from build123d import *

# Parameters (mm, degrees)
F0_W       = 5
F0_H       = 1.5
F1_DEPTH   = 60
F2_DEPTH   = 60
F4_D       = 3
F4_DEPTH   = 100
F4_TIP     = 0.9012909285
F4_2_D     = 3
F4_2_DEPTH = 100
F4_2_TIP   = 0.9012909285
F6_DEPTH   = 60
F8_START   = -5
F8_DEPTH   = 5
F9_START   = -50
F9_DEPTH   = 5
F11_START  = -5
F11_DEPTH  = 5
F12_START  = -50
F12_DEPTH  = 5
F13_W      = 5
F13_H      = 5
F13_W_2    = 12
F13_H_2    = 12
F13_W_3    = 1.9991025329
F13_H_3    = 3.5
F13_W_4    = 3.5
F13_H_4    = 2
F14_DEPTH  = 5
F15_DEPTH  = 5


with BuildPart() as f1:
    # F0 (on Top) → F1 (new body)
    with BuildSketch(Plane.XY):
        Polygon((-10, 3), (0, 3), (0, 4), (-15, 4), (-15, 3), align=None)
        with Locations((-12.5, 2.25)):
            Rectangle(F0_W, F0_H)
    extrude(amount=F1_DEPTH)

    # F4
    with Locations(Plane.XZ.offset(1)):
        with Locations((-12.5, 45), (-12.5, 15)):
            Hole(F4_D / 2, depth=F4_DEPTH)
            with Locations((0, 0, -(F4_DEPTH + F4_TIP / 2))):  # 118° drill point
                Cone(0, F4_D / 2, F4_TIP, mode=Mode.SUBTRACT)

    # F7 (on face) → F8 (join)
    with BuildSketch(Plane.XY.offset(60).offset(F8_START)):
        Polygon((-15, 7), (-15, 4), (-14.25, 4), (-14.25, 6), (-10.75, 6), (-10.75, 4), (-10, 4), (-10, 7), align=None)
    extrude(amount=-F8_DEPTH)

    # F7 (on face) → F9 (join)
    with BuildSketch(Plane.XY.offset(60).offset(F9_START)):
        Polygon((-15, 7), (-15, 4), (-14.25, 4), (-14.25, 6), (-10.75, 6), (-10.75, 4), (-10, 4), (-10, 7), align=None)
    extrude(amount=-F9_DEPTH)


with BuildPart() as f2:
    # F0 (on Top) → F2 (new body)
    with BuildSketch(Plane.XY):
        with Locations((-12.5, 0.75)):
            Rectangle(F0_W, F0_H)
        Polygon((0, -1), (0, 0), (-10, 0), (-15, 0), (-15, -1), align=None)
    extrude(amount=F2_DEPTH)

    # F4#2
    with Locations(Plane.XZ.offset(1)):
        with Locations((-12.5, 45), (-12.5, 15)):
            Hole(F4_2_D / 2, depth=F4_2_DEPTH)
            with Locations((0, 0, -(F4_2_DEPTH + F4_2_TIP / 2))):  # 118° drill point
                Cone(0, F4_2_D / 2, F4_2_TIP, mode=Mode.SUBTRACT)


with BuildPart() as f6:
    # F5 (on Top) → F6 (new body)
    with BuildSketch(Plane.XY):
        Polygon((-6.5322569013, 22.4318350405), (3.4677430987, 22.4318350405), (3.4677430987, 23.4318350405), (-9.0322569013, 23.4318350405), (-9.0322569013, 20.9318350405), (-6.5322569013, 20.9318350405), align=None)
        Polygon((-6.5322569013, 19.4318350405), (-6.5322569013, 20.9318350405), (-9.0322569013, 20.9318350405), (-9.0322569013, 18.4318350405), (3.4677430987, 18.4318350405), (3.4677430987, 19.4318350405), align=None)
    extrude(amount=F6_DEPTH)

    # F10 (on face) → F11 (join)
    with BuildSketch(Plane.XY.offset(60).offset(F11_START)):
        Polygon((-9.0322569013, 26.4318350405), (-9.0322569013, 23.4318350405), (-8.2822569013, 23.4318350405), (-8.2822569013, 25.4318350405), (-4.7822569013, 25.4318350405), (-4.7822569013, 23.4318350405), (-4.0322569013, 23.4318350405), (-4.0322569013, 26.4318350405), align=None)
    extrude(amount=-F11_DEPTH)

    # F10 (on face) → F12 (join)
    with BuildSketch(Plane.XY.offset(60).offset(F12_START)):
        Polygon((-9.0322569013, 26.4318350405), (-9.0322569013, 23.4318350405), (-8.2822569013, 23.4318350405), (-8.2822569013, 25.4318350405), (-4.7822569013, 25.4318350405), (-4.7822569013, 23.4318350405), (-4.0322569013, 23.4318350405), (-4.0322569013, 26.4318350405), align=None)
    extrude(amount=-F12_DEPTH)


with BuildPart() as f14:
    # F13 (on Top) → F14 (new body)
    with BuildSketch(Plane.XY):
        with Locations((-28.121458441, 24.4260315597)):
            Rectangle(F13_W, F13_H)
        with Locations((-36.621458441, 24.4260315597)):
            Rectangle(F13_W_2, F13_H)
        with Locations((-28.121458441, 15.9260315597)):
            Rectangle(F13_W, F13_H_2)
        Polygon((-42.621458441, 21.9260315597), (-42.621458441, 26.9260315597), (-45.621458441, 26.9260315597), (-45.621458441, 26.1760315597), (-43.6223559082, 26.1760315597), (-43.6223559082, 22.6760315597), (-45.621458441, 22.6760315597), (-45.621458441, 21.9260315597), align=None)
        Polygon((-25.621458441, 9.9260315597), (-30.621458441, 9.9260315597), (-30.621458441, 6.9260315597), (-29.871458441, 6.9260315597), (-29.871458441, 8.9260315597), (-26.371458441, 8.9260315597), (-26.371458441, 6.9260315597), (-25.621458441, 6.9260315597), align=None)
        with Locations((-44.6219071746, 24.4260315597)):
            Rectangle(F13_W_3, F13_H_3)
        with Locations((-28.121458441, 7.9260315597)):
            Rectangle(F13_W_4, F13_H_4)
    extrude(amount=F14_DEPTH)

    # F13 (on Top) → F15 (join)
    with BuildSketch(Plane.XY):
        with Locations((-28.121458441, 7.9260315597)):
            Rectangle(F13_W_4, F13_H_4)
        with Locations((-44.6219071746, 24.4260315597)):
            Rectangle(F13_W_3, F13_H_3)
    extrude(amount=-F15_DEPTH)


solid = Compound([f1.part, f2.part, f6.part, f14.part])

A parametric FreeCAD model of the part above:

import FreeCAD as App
import Part
import Sketcher

V = App.Vector
Q = App.Units.Quantity


def add_polygon(sketch, points):
    """Adds a closed chain of lines whose ends are joined by coincident constraints."""
    first, n = sketch.GeometryCount, len(points)
    for a, b in zip(points, points[1:] + points[:1]):
        sketch.addGeometry(Part.LineSegment(App.Vector(*a, 0), App.Vector(*b, 0)), False)
    for i in range(n):
        sketch.addConstraint(Sketcher.Constraint("Coincident", first + i, 2, first + (i + 1) % n, 1))

doc = App.newDocument("Part")
body = doc.addObject("PartDesign::Body", "Body")

# Sketch on XY plane
sketch1 = body.newObject("Sketcher::SketchObject", "Sketch")
sketch1.AttachmentSupport = (doc.getObject("XY_Plane"), [""])
sketch1.MapMode = "FlatFace"
add_polygon(sketch1, [(0, 3), (0, 4), (-15, 4), (-15, 1.5), (-10, 1.5), (-10, 3)])  # lines 0-5
sketch1.addConstraint(Sketcher.Constraint("Vertical", 0))
sketch1.addConstraint(Sketcher.Constraint("Horizontal", 1))
sketch1.addConstraint(Sketcher.Constraint("Vertical", 2))
sketch1.addConstraint(Sketcher.Constraint("Horizontal", 3))
sketch1.addConstraint(Sketcher.Constraint("Vertical", 4))
sketch1.addConstraint(Sketcher.Constraint("Horizontal", 5))
sketch1.addConstraint(Sketcher.Constraint("PointOnObject", 0, 2, -2))
sketch1.addConstraint(Sketcher.Constraint("DistanceX", 1, 2, 1, 1, Q("15 mm")))
sketch1.addConstraint(Sketcher.Constraint("DistanceX", 3, 1, 3, 2, Q("5 mm")))
sketch1.addConstraint(Sketcher.Constraint("DistanceY", 0, 1, 0, 2, Q("1 mm")))
sketch1.addConstraint(Sketcher.Constraint("DistanceY", 2, 2, 2, 1, Q("2.5 mm")))
sketch1.addConstraint(Sketcher.Constraint("DistanceY", -1, 1, 0, 2, Q("4 mm")))
pad1 = body.newObject("PartDesign::Pad", "Pad")
pad1.Profile = sketch1
pad1.Length = 60

# Sketch on XZ plane
sketch2 = body.newObject("Sketcher::SketchObject", "Sketch001")
sketch2.AttachmentSupport = (doc.getObject("XZ_Plane"), [""])
sketch2.MapMode = "FlatFace"
sketch2.AttachmentOffset = App.Placement(V(0, 0, 1), App.Rotation())
sketch2.addGeometry(Part.Circle(V(-12.5, 45, 0), V(0, 0, 1), 1.5), False)
sketch2.addGeometry(Part.Circle(V(-12.5, 15, 0), V(0, 0, 1), 1.5), False)
sketch2.addConstraint(Sketcher.Constraint("Equal", 0, 1))
sketch2.addConstraint(Sketcher.Constraint("Vertical", 0, 3, 1, 3))
sketch2.addConstraint(Sketcher.Constraint("Diameter", 0, Q("3 mm")))
sketch2.addConstraint(Sketcher.Constraint("DistanceY", -1, 1, 0, 3, Q("45 mm")))
sketch2.addConstraint(Sketcher.Constraint("DistanceY", -1, 1, 1, 3, Q("15 mm")))
sketch2.addConstraint(Sketcher.Constraint("DistanceX", 0, 3, -1, 1, Q("12.5 mm")))
doc.recompute()
hole = body.newObject("PartDesign::Hole", "Hole")
hole.Profile = sketch2
hole.ThreadType = "None"
hole.Diameter = 3
hole.DepthType = "Dimension"
hole.Depth = 100
hole.DrillPoint = "Angled"
hole.DrillPointAngle = 118

# Sketch on XY plane
sketch3 = body.newObject("Sketcher::SketchObject", "Sketch002")
sketch3.AttachmentSupport = (doc.getObject("XY_Plane"), [""])
sketch3.MapMode = "FlatFace"
sketch3.AttachmentOffset = App.Placement(V(0, 0, 55), App.Rotation())
add_polygon(sketch3, [(-15, 7), (-15, 4), (-14.2, 4), (-14.2, 6), (-10.8, 6), (-10.8, 4), (-10, 4), (-10, 7)])  # lines 0-7
sketch3.addConstraint(Sketcher.Constraint("Vertical", 0))
sketch3.addConstraint(Sketcher.Constraint("Horizontal", 1))
sketch3.addConstraint(Sketcher.Constraint("Vertical", 2))
sketch3.addConstraint(Sketcher.Constraint("Horizontal", 3))
sketch3.addConstraint(Sketcher.Constraint("Vertical", 4))
sketch3.addConstraint(Sketcher.Constraint("Horizontal", 5))
sketch3.addConstraint(Sketcher.Constraint("Vertical", 6))
sketch3.addConstraint(Sketcher.Constraint("Horizontal", 7))
sketch3.addConstraint(Sketcher.Constraint("Horizontal", 1, 2, 4, 2))
sketch3.addConstraint(Sketcher.Constraint("Equal", 1, 5))
sketch3.addConstraint(Sketcher.Constraint("DistanceX", 7, 2, 7, 1, Q("5 mm")))
sketch3.addConstraint(Sketcher.Constraint("DistanceY", 0, 2, 0, 1, Q("3 mm")))
sketch3.addConstraint(Sketcher.Constraint("DistanceY", 2, 1, 2, 2, Q("2 mm")))
sketch3.addConstraint(Sketcher.Constraint("DistanceX", 3, 1, 3, 2, Q("3.5 mm")))
sketch3.addConstraint(Sketcher.Constraint("DistanceX", 0, 2, -1, 1, Q("15 mm")))
sketch3.addConstraint(Sketcher.Constraint("DistanceY", -1, 1, 0, 2, Q("4 mm")))
pad2 = body.newObject("PartDesign::Pad", "Pad001")
pad2.Profile = sketch3
pad2.Length = 5
pad2.Reversed = True

# Sketch on XY plane
sketch4 = body.newObject("Sketcher::SketchObject", "Sketch003")
sketch4.AttachmentSupport = (doc.getObject("XY_Plane"), [""])
sketch4.MapMode = "FlatFace"
sketch4.AttachmentOffset = App.Placement(V(0, 0, 10), App.Rotation())
add_polygon(sketch4, [(-15, 7), (-15, 4), (-14.2, 4), (-14.2, 6), (-10.8, 6), (-10.8, 4), (-10, 4), (-10, 7)])  # lines 0-7
sketch4.addConstraint(Sketcher.Constraint("Vertical", 0))
sketch4.addConstraint(Sketcher.Constraint("Horizontal", 1))
sketch4.addConstraint(Sketcher.Constraint("Vertical", 2))
sketch4.addConstraint(Sketcher.Constraint("Horizontal", 3))
sketch4.addConstraint(Sketcher.Constraint("Vertical", 4))
sketch4.addConstraint(Sketcher.Constraint("Horizontal", 5))
sketch4.addConstraint(Sketcher.Constraint("Vertical", 6))
sketch4.addConstraint(Sketcher.Constraint("Horizontal", 7))
sketch4.addConstraint(Sketcher.Constraint("Horizontal", 1, 2, 4, 2))
sketch4.addConstraint(Sketcher.Constraint("Equal", 1, 5))
sketch4.addConstraint(Sketcher.Constraint("DistanceX", 7, 2, 7, 1, Q("5 mm")))
sketch4.addConstraint(Sketcher.Constraint("DistanceY", 0, 2, 0, 1, Q("3 mm")))
sketch4.addConstraint(Sketcher.Constraint("DistanceY", 2, 1, 2, 2, Q("2 mm")))
sketch4.addConstraint(Sketcher.Constraint("DistanceX", 3, 1, 3, 2, Q("3.5 mm")))
sketch4.addConstraint(Sketcher.Constraint("DistanceX", 0, 2, -1, 1, Q("15 mm")))
sketch4.addConstraint(Sketcher.Constraint("DistanceY", -1, 1, 0, 2, Q("4 mm")))
pad3 = body.newObject("PartDesign::Pad", "Pad002")
pad3.Profile = sketch4
pad3.Length = 5
pad3.Reversed = True
body2 = doc.addObject("PartDesign::Body", "Body001")

# Sketch on XY plane
sketch5 = body2.newObject("Sketcher::SketchObject", "Sketch004")
sketch5.AttachmentSupport = (doc.getObject("XY_Plane001"), [""])
sketch5.MapMode = "FlatFace"
add_polygon(sketch5, [(-15, 1.5), (-15, -1), (0, -1), (0, 0), (-10, 0), (-10, 1.5)])  # lines 0-5
sketch5.addConstraint(Sketcher.Constraint("Vertical", 0))
sketch5.addConstraint(Sketcher.Constraint("Horizontal", 1))
sketch5.addConstraint(Sketcher.Constraint("Vertical", 2))
sketch5.addConstraint(Sketcher.Constraint("Horizontal", 3))
sketch5.addConstraint(Sketcher.Constraint("Vertical", 4))
sketch5.addConstraint(Sketcher.Constraint("Horizontal", 5))
sketch5.addConstraint(Sketcher.Constraint("Coincident", 2, 2, -1, 1))
sketch5.addConstraint(Sketcher.Constraint("DistanceX", 1, 1, 1, 2, Q("15 mm")))
sketch5.addConstraint(Sketcher.Constraint("DistanceX", 3, 2, 3, 1, Q("10 mm")))
sketch5.addConstraint(Sketcher.Constraint("DistanceY", 2, 1, 2, 2, Q("1 mm")))
sketch5.addConstraint(Sketcher.Constraint("DistanceY", 0, 2, 0, 1, Q("2.5 mm")))
pad4 = body2.newObject("PartDesign::Pad", "Pad003")
pad4.Profile = sketch5
pad4.Length = 60

# Sketch on XZ plane
sketch6 = body2.newObject("Sketcher::SketchObject", "Sketch005")
sketch6.AttachmentSupport = (doc.getObject("XZ_Plane001"), [""])
sketch6.MapMode = "FlatFace"
sketch6.AttachmentOffset = App.Placement(V(0, 0, 1), App.Rotation())
sketch6.addGeometry(Part.Circle(V(-12.5, 45, 0), V(0, 0, 1), 1.5), False)
sketch6.addGeometry(Part.Circle(V(-12.5, 15, 0), V(0, 0, 1), 1.5), False)
sketch6.addConstraint(Sketcher.Constraint("Equal", 0, 1))
sketch6.addConstraint(Sketcher.Constraint("Vertical", 0, 3, 1, 3))
sketch6.addConstraint(Sketcher.Constraint("Diameter", 0, Q("3 mm")))
sketch6.addConstraint(Sketcher.Constraint("DistanceY", -1, 1, 0, 3, Q("45 mm")))
sketch6.addConstraint(Sketcher.Constraint("DistanceY", -1, 1, 1, 3, Q("15 mm")))
sketch6.addConstraint(Sketcher.Constraint("DistanceX", 0, 3, -1, 1, Q("12.5 mm")))
doc.recompute()
hole2 = body2.newObject("PartDesign::Hole", "Hole001")
hole2.Profile = sketch6
hole2.ThreadType = "None"
hole2.Diameter = 3
hole2.DepthType = "Dimension"
hole2.Depth = 100
hole2.DrillPoint = "Angled"
hole2.DrillPointAngle = 118
body3 = doc.addObject("PartDesign::Body", "Body002")

# Sketch on XY plane
sketch7 = body3.newObject("Sketcher::SketchObject", "Sketch006")
sketch7.AttachmentSupport = (doc.getObject("XY_Plane002"), [""])
sketch7.MapMode = "FlatFace"
add_polygon(sketch7, [(-6.5, 22.4), (3.5, 22.4), (3.5, 23.4), (-9, 23.4), (-9, 18.4), (3.5, 18.4), (3.5, 19.4), (-6.5, 19.4)])  # lines 0-7
sketch7.addConstraint(Sketcher.Constraint("Horizontal", 0))
sketch7.addConstraint(Sketcher.Constraint("Vertical", 1))
sketch7.addConstraint(Sketcher.Constraint("Horizontal", 2))
sketch7.addConstraint(Sketcher.Constraint("Vertical", 3))
sketch7.addConstraint(Sketcher.Constraint("Horizontal", 4))
sketch7.addConstraint(Sketcher.Constraint("Vertical", 5))
sketch7.addConstraint(Sketcher.Constraint("Horizontal", 6))
sketch7.addConstraint(Sketcher.Constraint("Vertical", 7))
sketch7.addConstraint(Sketcher.Constraint("Vertical", 1, 2, 4, 2))
sketch7.addConstraint(Sketcher.Constraint("Equal", 1, 5))
sketch7.addConstraint(Sketcher.Constraint("DistanceX", 0, 1, 0, 2, Q("10 mm")))
sketch7.addConstraint(Sketcher.Constraint("DistanceY", 1, 1, 1, 2, Q("1 mm")))
sketch7.addConstraint(Sketcher.Constraint("DistanceY", 3, 2, 3, 1, Q("5 mm")))
sketch7.addConstraint(Sketcher.Constraint("DistanceX", 2, 2, 2, 1, Q("12.5 mm")))
sketch7.addConstraint(Sketcher.Constraint("DistanceX", -1, 1, 0, 2, Q("3.467743 mm")))
sketch7.addConstraint(Sketcher.Constraint("DistanceY", -1, 1, 0, 2, Q("22.431835 mm")))
pad5 = body3.newObject("PartDesign::Pad", "Pad004")
pad5.Profile = sketch7
pad5.Length = 60

# Sketch on XY plane
sketch8 = body3.newObject("Sketcher::SketchObject", "Sketch007")
sketch8.AttachmentSupport = (doc.getObject("XY_Plane002"), [""])
sketch8.MapMode = "FlatFace"
sketch8.AttachmentOffset = App.Placement(V(0, 0, 55), App.Rotation())
add_polygon(sketch8, [(-9, 26.4), (-9, 23.4), (-8.3, 23.4), (-8.3, 25.4), (-4.8, 25.4), (-4.8, 23.4), (-4, 23.4), (-4, 26.4)])  # lines 0-7
sketch8.addConstraint(Sketcher.Constraint("Vertical", 0))
sketch8.addConstraint(Sketcher.Constraint("Horizontal", 1))
sketch8.addConstraint(Sketcher.Constraint("Vertical", 2))
sketch8.addConstraint(Sketcher.Constraint("Horizontal", 3))
sketch8.addConstraint(Sketcher.Constraint("Vertical", 4))
sketch8.addConstraint(Sketcher.Constraint("Horizontal", 5))
sketch8.addConstraint(Sketcher.Constraint("Vertical", 6))
sketch8.addConstraint(Sketcher.Constraint("Horizontal", 7))
sketch8.addConstraint(Sketcher.Constraint("Horizontal", 1, 2, 4, 2))
sketch8.addConstraint(Sketcher.Constraint("Equal", 1, 5))
sketch8.addConstraint(Sketcher.Constraint("DistanceX", 7, 2, 7, 1, Q("5 mm")))
sketch8.addConstraint(Sketcher.Constraint("DistanceY", 0, 2, 0, 1, Q("3 mm")))
sketch8.addConstraint(Sketcher.Constraint("DistanceY", 2, 1, 2, 2, Q("2 mm")))
sketch8.addConstraint(Sketcher.Constraint("DistanceX", 3, 1, 3, 2, Q("3.5 mm")))
sketch8.addConstraint(Sketcher.Constraint("DistanceX", 0, 2, -1, 1, Q("9.032257 mm")))
sketch8.addConstraint(Sketcher.Constraint("DistanceY", -1, 1, 0, 2, Q("23.431835 mm")))
pad6 = body3.newObject("PartDesign::Pad", "Pad005")
pad6.Profile = sketch8
pad6.Length = 5
pad6.Reversed = True

# Sketch on XY plane
sketch9 = body3.newObject("Sketcher::SketchObject", "Sketch008")
sketch9.AttachmentSupport = (doc.getObject("XY_Plane002"), [""])
sketch9.MapMode = "FlatFace"
sketch9.AttachmentOffset = App.Placement(V(0, 0, 10), App.Rotation())
add_polygon(sketch9, [(-9, 26.4), (-9, 23.4), (-8.3, 23.4), (-8.3, 25.4), (-4.8, 25.4), (-4.8, 23.4), (-4, 23.4), (-4, 26.4)])  # lines 0-7
sketch9.addConstraint(Sketcher.Constraint("Vertical", 0))
sketch9.addConstraint(Sketcher.Constraint("Horizontal", 1))
sketch9.addConstraint(Sketcher.Constraint("Vertical", 2))
sketch9.addConstraint(Sketcher.Constraint("Horizontal", 3))
sketch9.addConstraint(Sketcher.Constraint("Vertical", 4))
sketch9.addConstraint(Sketcher.Constraint("Horizontal", 5))
sketch9.addConstraint(Sketcher.Constraint("Vertical", 6))
sketch9.addConstraint(Sketcher.Constraint("Horizontal", 7))
sketch9.addConstraint(Sketcher.Constraint("Horizontal", 1, 2, 4, 2))
sketch9.addConstraint(Sketcher.Constraint("Equal", 1, 5))
sketch9.addConstraint(Sketcher.Constraint("DistanceX", 7, 2, 7, 1, Q("5 mm")))
sketch9.addConstraint(Sketcher.Constraint("DistanceY", 0, 2, 0, 1, Q("3 mm")))
sketch9.addConstraint(Sketcher.Constraint("DistanceY", 2, 1, 2, 2, Q("2 mm")))
sketch9.addConstraint(Sketcher.Constraint("DistanceX", 3, 1, 3, 2, Q("3.5 mm")))
sketch9.addConstraint(Sketcher.Constraint("DistanceX", 0, 2, -1, 1, Q("9.032257 mm")))
sketch9.addConstraint(Sketcher.Constraint("DistanceY", -1, 1, 0, 2, Q("23.431835 mm")))
pad7 = body3.newObject("PartDesign::Pad", "Pad006")
pad7.Profile = sketch9
pad7.Length = 5
pad7.Reversed = True
body4 = doc.addObject("PartDesign::Body", "Body003")

# Sketch on XY plane
sketch10 = body4.newObject("Sketcher::SketchObject", "Sketch009")
sketch10.AttachmentSupport = (doc.getObject("XY_Plane003"), [""])
sketch10.MapMode = "FlatFace"
add_polygon(sketch10, [(-25.6, 26.9), (-45.6, 26.9), (-45.6, 26.2), (-45.6, 22.7), (-45.6, 21.9), (-30.6, 21.9), (-30.6, 6.9), (-25.6, 6.9)])  # lines 0-7
sketch10.addConstraint(Sketcher.Constraint("Horizontal", 0))
sketch10.addConstraint(Sketcher.Constraint("Vertical", 1))
sketch10.addConstraint(Sketcher.Constraint("Vertical", 2))
sketch10.addConstraint(Sketcher.Constraint("Vertical", 3))
sketch10.addConstraint(Sketcher.Constraint("Horizontal", 4))
sketch10.addConstraint(Sketcher.Constraint("Vertical", 5))
sketch10.addConstraint(Sketcher.Constraint("Horizontal", 6))
sketch10.addConstraint(Sketcher.Constraint("Vertical", 7))
sketch10.addConstraint(Sketcher.Constraint("Equal", 1, 3))
sketch10.addConstraint(Sketcher.Constraint("Equal", 4, 5))
sketch10.addConstraint(Sketcher.Constraint("Equal", 0, 7))
sketch10.addConstraint(Sketcher.Constraint("DistanceX", 0, 2, 0, 1, Q("20 mm")))
sketch10.addConstraint(Sketcher.Constraint("DistanceX", 4, 1, 4, 2, Q("15 mm")))
sketch10.addConstraint(Sketcher.Constraint("DistanceY", 2, 2, 2, 1, Q("3.5 mm")))
sketch10.addConstraint(Sketcher.Constraint("DistanceX", 0, 2, -1, 1, Q("45.621458 mm")))
sketch10.addConstraint(Sketcher.Constraint("DistanceY", -1, 1, 0, 2, Q("26.926032 mm")))
pad8 = body4.newObject("PartDesign::Pad", "Pad007")
pad8.Profile = sketch10
pad8.Length = 5

# Sketch on XY plane
sketch11 = body4.newObject("Sketcher::SketchObject", "Sketch010")
sketch11.AttachmentSupport = (doc.getObject("XY_Plane003"), [""])
sketch11.MapMode = "FlatFace"
add_polygon(sketch11, [(-29.9, 8.9), (-29.9, 6.9), (-26.4, 6.9), (-26.4, 8.9)])  # lines 0-3
add_polygon(sketch11, [(-45.6, 26.2), (-45.6, 22.7), (-43.6, 22.7), (-43.6, 26.2)])  # lines 4-7
sketch11.addConstraint(Sketcher.Constraint("Vertical", 0))
sketch11.addConstraint(Sketcher.Constraint("Horizontal", 1))
sketch11.addConstraint(Sketcher.Constraint("Vertical", 2))
sketch11.addConstraint(Sketcher.Constraint("Horizontal", 3))
sketch11.addConstraint(Sketcher.Constraint("Vertical", 4))
sketch11.addConstraint(Sketcher.Constraint("Horizontal", 5))
sketch11.addConstraint(Sketcher.Constraint("Vertical", 6))
sketch11.addConstraint(Sketcher.Constraint("Horizontal", 7))
sketch11.addConstraint(Sketcher.Constraint("Equal", 3, 4))
sketch11.addConstraint(Sketcher.Constraint("DistanceY", 0, 2, 0, 1, Q("2 mm")))
sketch11.addConstraint(Sketcher.Constraint("DistanceX", 1, 1, 1, 2, Q("3.5 mm")))
sketch11.addConstraint(Sketcher.Constraint("DistanceX", 4, 2, 3, 2, Q("15.75 mm")))
sketch11.addConstraint(Sketcher.Constraint("DistanceY", 3, 2, 4, 2, Q("13.75 mm")))
sketch11.addConstraint(Sketcher.Constraint("DistanceX", 5, 1, 5, 2, Q("1.999103 mm")))
sketch11.addConstraint(Sketcher.Constraint("DistanceX", 0, 2, -1, 1, Q("29.871458 mm")))
sketch11.addConstraint(Sketcher.Constraint("DistanceY", -1, 1, 0, 2, Q("6.926032 mm")))
pad9 = body4.newObject("PartDesign::Pad", "Pad008")
pad9.Profile = sketch11
pad9.Length = 5
pad9.Reversed = True

doc.recompute()
